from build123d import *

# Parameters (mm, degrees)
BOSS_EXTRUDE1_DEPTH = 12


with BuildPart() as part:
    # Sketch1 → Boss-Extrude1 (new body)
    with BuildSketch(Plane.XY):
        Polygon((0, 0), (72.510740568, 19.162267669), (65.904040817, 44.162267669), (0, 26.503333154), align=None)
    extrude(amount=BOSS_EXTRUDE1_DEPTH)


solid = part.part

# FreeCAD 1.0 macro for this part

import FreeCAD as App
import Part
import Sketcher

V = App.Vector
Q = App.Units.Quantity


def add_polygon(sketch, points):
    """Adds a closed chain of lines whose ends are joined by coincident constraints."""
    first, n = sketch.GeometryCount, len(points)
    for a, b in zip(points, points[1:] + points[:1]):
        sketch.addGeometry(Part.LineSegment(App.Vector(*a, 0), App.Vector(*b, 0)), False)
    for i in range(n):
        sketch.addConstraint(Sketcher.Constraint("Coincident", first + i, 2, first + (i + 1) % n, 1))

doc = App.newDocument("Part")
body = doc.addObject("PartDesign::Body", "Body")

# Sketch on XY plane
sketch1 = body.newObject("Sketcher::SketchObject", "Sketch")
sketch1.AttachmentSupport = (doc.getObject("XY_Plane"), [""])
sketch1.MapMode = "FlatFace"
add_polygon(sketch1, [(0, 0), (72.510741, 19.162268), (65.904041, 44.162268), (0, 26.503333)])  # lines 0-3
sketch1.addConstraint([
    Sketcher.Constraint("Vertical", 3),
    Sketcher.Constraint("Coincident", 3, 2, -1, 1),
    Sketcher.Constraint("Perpendicular", 0, 1),
    Sketcher.Constraint("Angle", 2, Q("-165 deg")),
    Sketcher.Constraint("Distance", 0, 75.0),
    Sketcher.Constraint("DistanceY", 0, 2, 1, 2, 25.0),
    Sketcher.Constraint("DistanceX", 1, 2, 0, 2, 6.6067),
])
pad1 = body.newObject("PartDesign::Pad", "Pad")
pad1.Profile = sketch1
pad1.Length = 12

doc.recompute()
